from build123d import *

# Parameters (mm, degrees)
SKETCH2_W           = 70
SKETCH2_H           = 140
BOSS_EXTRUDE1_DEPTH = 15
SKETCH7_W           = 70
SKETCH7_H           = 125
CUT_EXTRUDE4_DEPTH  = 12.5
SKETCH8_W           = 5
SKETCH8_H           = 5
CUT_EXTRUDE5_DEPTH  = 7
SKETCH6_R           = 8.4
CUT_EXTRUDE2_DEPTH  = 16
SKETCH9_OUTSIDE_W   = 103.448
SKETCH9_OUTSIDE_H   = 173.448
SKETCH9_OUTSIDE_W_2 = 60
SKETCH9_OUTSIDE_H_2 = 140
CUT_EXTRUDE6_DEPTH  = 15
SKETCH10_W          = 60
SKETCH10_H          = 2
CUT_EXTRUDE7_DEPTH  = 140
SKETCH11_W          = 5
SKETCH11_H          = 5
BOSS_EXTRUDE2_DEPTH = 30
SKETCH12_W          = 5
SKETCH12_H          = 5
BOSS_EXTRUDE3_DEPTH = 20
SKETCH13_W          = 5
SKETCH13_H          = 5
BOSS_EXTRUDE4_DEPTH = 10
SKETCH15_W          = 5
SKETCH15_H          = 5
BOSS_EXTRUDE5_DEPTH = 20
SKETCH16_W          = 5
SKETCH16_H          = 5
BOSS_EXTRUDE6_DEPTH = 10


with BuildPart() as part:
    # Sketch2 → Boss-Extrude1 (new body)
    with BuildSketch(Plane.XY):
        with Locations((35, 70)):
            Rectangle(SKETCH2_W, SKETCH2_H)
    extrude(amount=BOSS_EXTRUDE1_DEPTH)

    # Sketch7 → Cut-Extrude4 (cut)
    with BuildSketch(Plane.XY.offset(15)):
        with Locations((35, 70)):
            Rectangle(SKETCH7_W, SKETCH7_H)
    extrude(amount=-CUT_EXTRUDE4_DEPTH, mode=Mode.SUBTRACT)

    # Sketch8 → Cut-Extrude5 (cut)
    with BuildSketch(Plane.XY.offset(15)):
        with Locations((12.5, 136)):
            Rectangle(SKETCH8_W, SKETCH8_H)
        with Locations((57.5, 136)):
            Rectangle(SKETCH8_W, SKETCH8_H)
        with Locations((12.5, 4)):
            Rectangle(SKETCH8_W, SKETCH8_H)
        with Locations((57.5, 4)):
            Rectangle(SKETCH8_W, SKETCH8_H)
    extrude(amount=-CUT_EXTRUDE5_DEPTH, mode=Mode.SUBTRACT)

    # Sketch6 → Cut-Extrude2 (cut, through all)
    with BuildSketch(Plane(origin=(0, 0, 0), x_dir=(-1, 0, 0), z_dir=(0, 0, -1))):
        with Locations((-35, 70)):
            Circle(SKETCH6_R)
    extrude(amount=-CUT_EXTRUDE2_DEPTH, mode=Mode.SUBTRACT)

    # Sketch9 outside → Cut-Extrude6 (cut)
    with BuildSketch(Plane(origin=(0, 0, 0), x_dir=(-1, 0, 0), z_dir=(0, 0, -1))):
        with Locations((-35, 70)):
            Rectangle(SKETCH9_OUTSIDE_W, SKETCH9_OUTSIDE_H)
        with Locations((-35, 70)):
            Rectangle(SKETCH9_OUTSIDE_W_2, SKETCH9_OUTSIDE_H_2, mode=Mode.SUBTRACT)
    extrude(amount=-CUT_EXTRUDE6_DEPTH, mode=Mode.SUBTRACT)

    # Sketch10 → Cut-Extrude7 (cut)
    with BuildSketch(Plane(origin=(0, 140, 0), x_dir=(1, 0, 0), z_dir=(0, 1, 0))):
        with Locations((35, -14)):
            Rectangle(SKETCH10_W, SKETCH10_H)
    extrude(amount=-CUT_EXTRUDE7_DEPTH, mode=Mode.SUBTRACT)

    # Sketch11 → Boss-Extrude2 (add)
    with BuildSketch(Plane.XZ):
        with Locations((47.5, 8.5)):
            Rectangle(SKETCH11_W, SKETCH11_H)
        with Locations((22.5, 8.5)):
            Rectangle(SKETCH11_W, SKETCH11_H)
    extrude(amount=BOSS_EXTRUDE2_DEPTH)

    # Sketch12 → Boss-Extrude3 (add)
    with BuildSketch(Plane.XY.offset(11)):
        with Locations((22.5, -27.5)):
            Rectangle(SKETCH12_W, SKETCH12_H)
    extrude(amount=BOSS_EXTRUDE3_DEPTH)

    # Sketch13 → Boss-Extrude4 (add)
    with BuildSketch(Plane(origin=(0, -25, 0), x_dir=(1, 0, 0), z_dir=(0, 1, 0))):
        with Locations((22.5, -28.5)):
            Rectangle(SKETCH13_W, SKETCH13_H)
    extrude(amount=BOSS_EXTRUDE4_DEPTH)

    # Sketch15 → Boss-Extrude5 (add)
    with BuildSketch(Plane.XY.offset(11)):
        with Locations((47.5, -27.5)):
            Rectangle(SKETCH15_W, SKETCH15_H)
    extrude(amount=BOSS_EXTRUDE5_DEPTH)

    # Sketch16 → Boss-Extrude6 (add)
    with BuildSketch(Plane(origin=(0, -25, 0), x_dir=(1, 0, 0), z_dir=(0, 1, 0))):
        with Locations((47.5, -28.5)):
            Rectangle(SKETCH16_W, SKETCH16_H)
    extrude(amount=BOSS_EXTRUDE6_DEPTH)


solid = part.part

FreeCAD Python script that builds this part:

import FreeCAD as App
import Part
import Sketcher
from FreeCAD import Vector


def add_polygon(sketch, points):
    """Adds a closed chain of lines whose ends are joined by coincident constraints."""
    first, n = sketch.GeometryCount, len(points)
    for a, b in zip(points, points[1:] + points[:1]):
        sketch.addGeometry(Part.LineSegment(App.Vector(*a, 0), App.Vector(*b, 0)), False)
    for i in range(n):
        sketch.addConstraint(Sketcher.Constraint("Coincident", first + i, 2, first + (i + 1) % n, 1))

doc = App.newDocument("Part")
body = doc.addObject("PartDesign::Body", "Body")

sketch1 = body.newObject("Sketcher::SketchObject", "Sketch")
sketch1.AttachmentSupport = (doc.getObject("XY_Plane"), [""])
sketch1.MapMode = "FlatFace"
add_polygon(sketch1, [(0, 140), (0, 0), (70, 0), (70, 140)])
sketch1.addConstraint([
    Sketcher.Constraint("Vertical", 0),
    Sketcher.Constraint("Horizontal", 1),
    Sketcher.Constraint("Vertical", 2),
    Sketcher.Constraint("Horizontal", 3),
    Sketcher.Constraint("Coincident", 0, 2, -1, 1),
    Sketcher.Constraint("DistanceX", 1, 1, 1, 2, 70.0),
    Sketcher.Constraint("DistanceY", 0, 2, 0, 1, 140.0),
])
pad1 = body.newObject("PartDesign::Pad", "Pad")
pad1.Profile = sketch1
pad1.Length = 15

sketch2 = body.newObject("Sketcher::SketchObject", "Sketch001")
sketch2.AttachmentSupport = (doc.getObject("XY_Plane"), [""])
sketch2.MapMode = "FlatFace"
sketch2.AttachmentOffset = App.Placement(Vector(0, 0, 15), App.Rotation())
add_polygon(sketch2, [(0, 132.5), (0, 7.5), (70, 7.5), (70, 132.5)])
sketch2.addConstraint([
    Sketcher.Constraint("Vertical", 0),
    Sketcher.Constraint("Horizontal", 1),
    Sketcher.Constraint("Vertical", 2),
    Sketcher.Constraint("Horizontal", 3),
    Sketcher.Constraint("PointOnObject", 0, 2, -2),
    Sketcher.Constraint("DistanceX", 1, 1, 1, 2, 70.0),
    Sketcher.Constraint("DistanceY", 0, 2, 0, 1, 125.0),
    Sketcher.Constraint("DistanceY", -1, 1, 0, 2, 7.5),
])
pocket1 = body.newObject("PartDesign::Pocket", "Pocket")
pocket1.Profile = sketch2
pocket1.Length = 12.5

sketch3 = body.newObject("Sketcher::SketchObject", "Sketch002")
sketch3.AttachmentSupport = (doc.getObject("XY_Plane"), [""])
sketch3.MapMode = "FlatFace"
sketch3.AttachmentOffset = App.Placement(Vector(0, 0, 15), App.Rotation())
add_polygon(sketch3, [(10, 138.5), (10, 133.5), (15, 133.5), (15, 138.5)])
add_polygon(sketch3, [(55, 138.5), (55, 133.5), (60, 133.5), (60, 138.5)])
add_polygon(sketch3, [(10, 6.5), (10, 1.5), (15, 1.5), (15, 6.5)])
add_polygon(sketch3, [(55, 6.5), (55, 1.5), (60, 1.5), (60, 6.5)])
sketch3.addConstraint([
    Sketcher.Constraint("Vertical", 0),
    Sketcher.Constraint("Horizontal", 1),
    Sketcher.Constraint("Vertical", 2),
    Sketcher.Constraint("Horizontal", 3),
    Sketcher.Constraint("Vertical", 4),
    Sketcher.Constraint("Horizontal", 5),
    Sketcher.Constraint("Vertical", 6),
    Sketcher.Constraint("Horizontal", 7),
    Sketcher.Constraint("Vertical", 8),
    Sketcher.Constraint("Horizontal", 9),
    Sketcher.Constraint("Vertical", 10),
    Sketcher.Constraint("Horizontal", 11),
    Sketcher.Constraint("Vertical", 12),
    Sketcher.Constraint("Horizontal", 13),
    Sketcher.Constraint("Vertical", 14),
    Sketcher.Constraint("Horizontal", 15),
    Sketcher.Constraint("Horizontal", 1, 2, 4, 2),
    Sketcher.Constraint("Horizontal", 3, 2, 6, 2),
    Sketcher.Constraint("Horizontal", 9, 2, 12, 2),
    Sketcher.Constraint("Horizontal", 11, 2, 14, 2),
    Sketcher.Constraint("Vertical", 3, 2, 8, 2),
    Sketcher.Constraint("Vertical", 2, 2, 9, 2),
    Sketcher.Constraint("Vertical", 7, 2, 12, 2),
    Sketcher.Constraint("Vertical", 6, 2, 13, 2),
    Sketcher.Constraint("Equal", 3, 5),
    Sketcher.Constraint("Equal", 15, 0),
    Sketcher.Constraint("Equal", 6, 8),
    Sketcher.Constraint("DistanceX", 1, 1, 1, 2, 5.0),
    Sketcher.Constraint("DistanceX", -1, 1, 0, 2, 10.0),
    Sketcher.Constraint("DistanceX", -1, 1, 4, 2, 55.0),
    Sketcher.Constraint("DistanceY", 8, 2, 0, 2, 132.0),
    Sketcher.Constraint("DistanceY", -1, 1, 0, 2, 133.5),
])
pocket2 = body.newObject("PartDesign::Pocket", "Pocket001")
pocket2.Profile = sketch3
pocket2.Length = 7

sketch4 = body.newObject("Sketcher::SketchObject", "Sketch003")
sketch4.AttachmentSupport = (doc.getObject("XY_Plane"), [""])
sketch4.MapMode = "FlatFace"
sketch4.addGeometry(Part.Circle(Vector(35, 70, 0), Vector(0, 0, 1), 8.4), False)
sketch4.addConstraint([
    Sketcher.Constraint("Diameter", 0, 16.8),
    Sketcher.Constraint("DistanceX", -1, 1, 0, 3, 35.0),
    Sketcher.Constraint("DistanceY", -1, 1, 0, 3, 70.0),
])
pocket3 = body.newObject("PartDesign::Pocket", "Pocket002")
pocket3.Profile = sketch4
pocket3.Type = "ThroughAll"
pocket3.Reversed = True

sketch5 = body.newObject("Sketcher::SketchObject", "Sketch004")
sketch5.AttachmentSupport = (doc.getObject("XY_Plane"), [""])
sketch5.MapMode = "FlatFace"
add_polygon(sketch5, [(86.724, 156.724), (86.724, -16.724), (-16.724, -16.724), (-16.724, 156.724)])
add_polygon(sketch5, [(5, 0), (65, 0), (65, 140), (5, 140)])
sketch5.addConstraint([
    Sketcher.Constraint("Vertical", 0),
    Sketcher.Constraint("Horizontal", 1),
    Sketcher.Constraint("Vertical", 2),
    Sketcher.Constraint("Horizontal", 3),
    Sketcher.Constraint("Horizontal", 4),
    Sketcher.Constraint("Vertical", 5),
    Sketcher.Constraint("Horizontal", 6),
    Sketcher.Constraint("Vertical", 7),
    Sketcher.Constraint("PointOnObject", 4, 2, -1),
    Sketcher.Constraint("DistanceX", 4, 1, 4, 2, 60.0),
    Sketcher.Constraint("DistanceY", 5, 1, 5, 2, 140.0),
    Sketcher.Constraint("DistanceX", -1, 1, 4, 2, 65.0),
    Sketcher.Constraint("DistanceX", 1, 2, 1, 1, 103.448),
    Sketcher.Constraint("DistanceY", 0, 2, 0, 1, 173.448),
    Sketcher.Constraint("DistanceX", -1, 1, 0, 2, 86.724),
    Sketcher.Constraint("DistanceY", 0, 2, -1, 1, 16.724),
])
pocket4 = body.newObject("PartDesign::Pocket", "Pocket003")
pocket4.Profile = sketch5
pocket4.Length = 15
pocket4.Reversed = True

sketch6 = body.newObject("Sketcher::SketchObject", "Sketch005")
sketch6.AttachmentSupport = (doc.getObject("XZ_Plane"), [""])
sketch6.MapMode = "FlatFace"
sketch6.AttachmentOffset = App.Placement(Vector(0, 0, -140), App.Rotation())
add_polygon(sketch6, [(5, 13), (5, 15), (65, 15), (65, 13)])
sketch6.addConstraint([
    Sketcher.Constraint("Vertical", 0),
    Sketcher.Constraint("Horizontal", 1),
    Sketcher.Constraint("Vertical", 2),
    Sketcher.Constraint("Horizontal", 3),
    Sketcher.Constraint("DistanceX", 1, 1, 1, 2, 60.0),
    Sketcher.Constraint("DistanceY", 0, 1, 0, 2, 2.0),
    Sketcher.Constraint("DistanceX", -1, 1, 0, 2, 5.0),
    Sketcher.Constraint("DistanceY", -1, 1, 0, 2, 15.0),
])
pocket5 = body.newObject("PartDesign::Pocket", "Pocket004")
pocket5.Profile = sketch6
pocket5.Length = 140
pocket5.Reversed = True

sketch7 = body.newObject("Sketcher::SketchObject", "Sketch006")
sketch7.AttachmentSupport = (doc.getObject("XZ_Plane"), [""])
sketch7.MapMode = "FlatFace"
add_polygon(sketch7, [(45, 11), (45, 6), (50, 6), (50, 11)])
add_polygon(sketch7, [(20, 11), (20, 6), (25, 6), (25, 11)])
sketch7.addConstraint([
    Sketcher.Constraint("Vertical", 0),
    Sketcher.Constraint("Horizontal", 1),
    Sketcher.Constraint("Vertical", 2),
    Sketcher.Constraint("Horizontal", 3),
    Sketcher.Constraint("Vertical", 4),
    Sketcher.Constraint("Horizontal", 5),
    Sketcher.Constraint("Vertical", 6),
    Sketcher.Constraint("Horizontal", 7),
    Sketcher.Constraint("Horizontal", 1, 2, 4, 2),
    Sketcher.Constraint("Horizontal", 3, 2, 6, 2),
    Sketcher.Constraint("Equal", 3, 5),
    Sketcher.Constraint("Equal", 7, 0),
    Sketcher.Constraint("DistanceX", 1, 1, 1, 2, 5.0),
    Sketcher.Constraint("DistanceX", -1, 1, 0, 2, 45.0),
    Sketcher.Constraint("DistanceY", -1, 1, 0, 2, 6.0),
    Sketcher.Constraint("DistanceX", -1, 1, 4, 2, 20.0),
])
pad2 = body.newObject("PartDesign::Pad", "Pad001")
pad2.Profile = sketch7
pad2.Length = 30

sketch8 = body.newObject("Sketcher::SketchObject", "Sketch007")
sketch8.AttachmentSupport = (doc.getObject("XY_Plane"), [""])
sketch8.MapMode = "FlatFace"
sketch8.AttachmentOffset = App.Placement(Vector(0, 0, 11), App.Rotation())
add_polygon(sketch8, [(20, -25), (20, -30), (25, -30), (25, -25)])
sketch8.addConstraint([
    Sketcher.Constraint("Vertical", 0),
    Sketcher.Constraint("Horizontal", 1),
    Sketcher.Constraint("Vertical", 2),
    Sketcher.Constraint("Horizontal", 3),
    Sketcher.Constraint("Equal", 3, 0),
    Sketcher.Constraint("DistanceX", 1, 1, 1, 2, 5.0),
    Sketcher.Constraint("DistanceX", -1, 1, 0, 2, 20.0),
    Sketcher.Constraint("DistanceY", 0, 2, -1, 1, 30.0),
])
pad3 = body.newObject("PartDesign::Pad", "Pad002")
pad3.Profile = sketch8
pad3.Length = 20

sketch9 = body.newObject("Sketcher::SketchObject", "Sketch008")
sketch9.AttachmentSupport = (doc.getObject("XZ_Plane"), [""])
sketch9.MapMode = "FlatFace"
sketch9.AttachmentOffset = App.Placement(Vector(0, 0, 25), App.Rotation())
add_polygon(sketch9, [(20, 26), (20, 31), (25, 31), (25, 26)])
sketch9.addConstraint([
    Sketcher.Constraint("Vertical", 0),
    Sketcher.Constraint("Horizontal", 1),
    Sketcher.Constraint("Vertical", 2),
    Sketcher.Constraint("Horizontal", 3),
    Sketcher.Constraint("Equal", 3, 0),
    Sketcher.Constraint("DistanceX", 1, 1, 1, 2, 5.0),
    Sketcher.Constraint("DistanceX", -1, 1, 0, 2, 20.0),
    Sketcher.Constraint("DistanceY", -1, 1, 0, 2, 31.0),
])
pad4 = body.newObject("PartDesign::Pad", "Pad003")
pad4.Profile = sketch9
pad4.Length = 10
pad4.Reversed = True

sketch10 = body.newObject("Sketcher::SketchObject", "Sketch009")
sketch10.AttachmentSupport = (doc.getObject("XY_Plane"), [""])
sketch10.MapMode = "FlatFace"
sketch10.AttachmentOffset = App.Placement(Vector(0, 0, 11), App.Rotation())
add_polygon(sketch10, [(45, -25), (45, -30), (50, -30), (50, -25)])
sketch10.addConstraint([
    Sketcher.Constraint("Vertical", 0),
    Sketcher.Constraint("Horizontal", 1),
    Sketcher.Constraint("Vertical", 2),
    Sketcher.Constraint("Horizontal", 3),
    Sketcher.Constraint("Equal", 3, 0),
    Sketcher.Constraint("DistanceX", 1, 1, 1, 2, 5.0),
    Sketcher.Constraint("DistanceX", -1, 1, 0, 2, 45.0),
    Sketcher.Constraint("DistanceY", 0, 2, -1, 1, 30.0),
])
pad5 = body.newObject("PartDesign::Pad", "Pad004")
pad5.Profile = sketch10
pad5.Length = 20

sketch11 = body.newObject("Sketcher::SketchObject", "Sketch010")
sketch11.AttachmentSupport = (doc.getObject("XZ_Plane"), [""])
sketch11.MapMode = "FlatFace"
sketch11.AttachmentOffset = App.Placement(Vector(0, 0, 25), App.Rotation())
add_polygon(sketch11, [(45, 26), (45, 31), (50, 31), (50, 26)])
sketch11.addConstraint([
    Sketcher.Constraint("Vertical", 0),
    Sketcher.Constraint("Horizontal", 1),
    Sketcher.Constraint("Vertical", 2),
    Sketcher.Constraint("Horizontal", 3),
    Sketcher.Constraint("Equal", 3, 0),
    Sketcher.Constraint("DistanceX", 1, 1, 1, 2, 5.0),
    Sketcher.Constraint("DistanceX", -1, 1, 0, 2, 45.0),
    Sketcher.Constraint("DistanceY", -1, 1, 0, 2, 31.0),
])
pad6 = body.newObject("PartDesign::Pad", "Pad005")
pad6.Profile = sketch11
pad6.Length = 10
pad6.Reversed = True

doc.recompute()
